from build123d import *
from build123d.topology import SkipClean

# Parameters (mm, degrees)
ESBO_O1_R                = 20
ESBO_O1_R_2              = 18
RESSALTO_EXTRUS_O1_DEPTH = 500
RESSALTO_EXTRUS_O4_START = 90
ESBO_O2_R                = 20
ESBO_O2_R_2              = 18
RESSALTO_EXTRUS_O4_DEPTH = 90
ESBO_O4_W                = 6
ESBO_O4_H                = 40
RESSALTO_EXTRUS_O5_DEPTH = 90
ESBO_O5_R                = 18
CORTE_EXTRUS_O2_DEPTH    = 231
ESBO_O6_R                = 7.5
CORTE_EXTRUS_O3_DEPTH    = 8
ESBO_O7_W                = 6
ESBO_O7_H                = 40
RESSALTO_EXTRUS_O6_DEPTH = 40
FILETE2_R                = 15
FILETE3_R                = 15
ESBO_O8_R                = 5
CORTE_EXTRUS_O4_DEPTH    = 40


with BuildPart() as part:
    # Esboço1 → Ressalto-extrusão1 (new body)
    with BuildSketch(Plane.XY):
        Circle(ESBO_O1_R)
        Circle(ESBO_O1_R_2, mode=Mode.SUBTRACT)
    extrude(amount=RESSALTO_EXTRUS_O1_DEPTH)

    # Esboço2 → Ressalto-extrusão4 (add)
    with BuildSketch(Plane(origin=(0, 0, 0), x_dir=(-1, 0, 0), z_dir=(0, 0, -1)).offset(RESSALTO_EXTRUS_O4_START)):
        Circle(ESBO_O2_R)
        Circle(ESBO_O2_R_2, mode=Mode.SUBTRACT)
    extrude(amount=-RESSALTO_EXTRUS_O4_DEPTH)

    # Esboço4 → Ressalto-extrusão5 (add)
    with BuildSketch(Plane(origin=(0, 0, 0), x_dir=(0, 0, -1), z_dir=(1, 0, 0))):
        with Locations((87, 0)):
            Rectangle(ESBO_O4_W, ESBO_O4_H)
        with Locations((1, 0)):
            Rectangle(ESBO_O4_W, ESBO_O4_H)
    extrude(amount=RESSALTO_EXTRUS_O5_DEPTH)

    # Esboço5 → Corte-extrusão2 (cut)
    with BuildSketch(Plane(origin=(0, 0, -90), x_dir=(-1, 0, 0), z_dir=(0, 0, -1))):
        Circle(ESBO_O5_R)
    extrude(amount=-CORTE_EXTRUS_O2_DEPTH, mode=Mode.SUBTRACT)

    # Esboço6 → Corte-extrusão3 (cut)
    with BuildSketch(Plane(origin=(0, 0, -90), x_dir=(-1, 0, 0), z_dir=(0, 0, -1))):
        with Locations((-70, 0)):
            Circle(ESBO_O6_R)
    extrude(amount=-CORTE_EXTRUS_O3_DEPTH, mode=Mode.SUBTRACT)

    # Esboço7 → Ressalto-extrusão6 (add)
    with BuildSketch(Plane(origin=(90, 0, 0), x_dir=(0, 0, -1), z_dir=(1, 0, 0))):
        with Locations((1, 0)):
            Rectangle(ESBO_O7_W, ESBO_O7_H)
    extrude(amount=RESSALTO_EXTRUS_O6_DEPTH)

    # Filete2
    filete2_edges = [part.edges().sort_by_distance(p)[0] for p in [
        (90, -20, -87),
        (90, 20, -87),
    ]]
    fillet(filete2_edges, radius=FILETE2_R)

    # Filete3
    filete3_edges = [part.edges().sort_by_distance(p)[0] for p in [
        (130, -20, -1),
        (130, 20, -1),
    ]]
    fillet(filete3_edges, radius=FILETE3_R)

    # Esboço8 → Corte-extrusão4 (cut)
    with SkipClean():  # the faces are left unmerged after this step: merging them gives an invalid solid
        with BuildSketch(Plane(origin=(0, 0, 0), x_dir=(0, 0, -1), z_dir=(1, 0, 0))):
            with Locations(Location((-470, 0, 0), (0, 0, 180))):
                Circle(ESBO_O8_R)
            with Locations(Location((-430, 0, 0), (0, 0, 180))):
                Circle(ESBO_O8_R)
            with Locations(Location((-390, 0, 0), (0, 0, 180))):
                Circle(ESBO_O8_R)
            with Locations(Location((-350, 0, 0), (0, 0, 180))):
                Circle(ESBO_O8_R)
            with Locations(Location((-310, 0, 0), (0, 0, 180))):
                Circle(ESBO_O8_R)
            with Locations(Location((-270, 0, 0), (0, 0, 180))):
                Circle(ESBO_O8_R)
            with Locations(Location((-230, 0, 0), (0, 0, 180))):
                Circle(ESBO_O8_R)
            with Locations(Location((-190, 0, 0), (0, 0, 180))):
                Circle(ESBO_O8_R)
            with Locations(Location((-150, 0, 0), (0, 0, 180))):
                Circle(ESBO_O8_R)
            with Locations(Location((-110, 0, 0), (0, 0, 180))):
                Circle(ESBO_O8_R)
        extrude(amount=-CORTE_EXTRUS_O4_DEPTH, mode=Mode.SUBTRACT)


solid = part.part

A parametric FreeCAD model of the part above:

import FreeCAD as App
import Part
import Sketcher

V = App.Vector


def edges_at(feature, points):
    """Names of the edges that pass closest to the given points."""
    edges = feature.Shape.Edges
    near = lambda p: min(range(len(edges)), key=lambda i: edges[i].distToShape(Part.Vertex(*p))[0])
    return sorted({f"Edge{near(p) + 1}" for p in points})


def add_polygon(sketch, points):
    """Adds a closed chain of lines whose ends are joined by coincident constraints."""
    first, n = sketch.GeometryCount, len(points)
    for a, b in zip(points, points[1:] + points[:1]):
        sketch.addGeometry(Part.LineSegment(App.Vector(*a, 0), App.Vector(*b, 0)), False)
    for i in range(n):
        sketch.addConstraint(Sketcher.Constraint("Coincident", first + i, 2, first + (i + 1) % n, 1))

doc = App.newDocument("Part")
params = doc.addObject("Spreadsheet::Sheet", "Params")
for row, (alias, value) in enumerate([
    ("sketch1_diameter", "40 mm"),
    ("sketch1_diameter2", "36 mm"),
    ("pad1_length", "500 mm"),
    ("sketch2_diameter", "40 mm"),
    ("sketch2_diameter2", "36 mm"),
    ("pad2_length", "90 mm"),
    ("sketch3_width", "40 mm"),
    ("sketch3_height", "6 mm"),
    ("pad3_length", "90 mm"),
    ("sketch4_diameter", "36 mm"),
    ("pocket1_length", "231 mm"),
    ("sketch5_diameter", "15 mm"),
    ("pocket2_length", "8 mm"),
    ("sketch6_width", "40 mm"),
    ("sketch6_height", "6 mm"),
    ("pad4_length", "40 mm"),
    ("fillet_radius", "15 mm"),
    ("fillet2_radius", "15 mm"),
    ("sketch7_diameter", "10 mm"),
    ("pocket3_length", "40 mm"),
], start=1):
    params.set(f"A{row}", alias)
    params.set(f"B{row}", "=" + value)
    params.setAlias(f"B{row}", alias)

body = doc.addObject("PartDesign::Body", "Body")

sketch1 = body.newObject("Sketcher::SketchObject", "Sketch")
sketch1.AttachmentSupport = (doc.getObject("XY_Plane"), [""])
sketch1.MapMode = "FlatFace"
sketch1.addGeometry(Part.Circle(V(0, 0, 0), V(0, 0, 1), 20), False)
sketch1.addGeometry(Part.Circle(V(0, 0, 0), V(0, 0, 1), 18), False)
sketch1.addConstraint(Sketcher.Constraint("Coincident", 0, 3, -1, 1))
sketch1.addConstraint(Sketcher.Constraint("Coincident", 1, 3, -1, 1))
sketch1.addConstraint(Sketcher.Constraint("Diameter", 0, 40.0))
sketch1.addConstraint(Sketcher.Constraint("Diameter", 1, 36.0))
sketch1.setExpression("Constraints[2]", "Params.sketch1_diameter")
sketch1.setExpression("Constraints[3]", "Params.sketch1_diameter2")
pad1 = body.newObject("PartDesign::Pad", "Pad")
pad1.Profile = sketch1
pad1.setExpression("Length", "Params.pad1_length")

sketch2 = body.newObject("Sketcher::SketchObject", "Sketch001")
sketch2.AttachmentSupport = (doc.getObject("XY_Plane"), [""])
sketch2.MapMode = "FlatFace"
sketch2.AttachmentOffset = App.Placement(V(0, 0, -90), App.Rotation())
sketch2.addGeometry(Part.Circle(V(0, 0, 0), V(0, 0, 1), 20), False)
sketch2.addGeometry(Part.Circle(V(0, 0, 0), V(0, 0, 1), 18), False)
sketch2.addConstraint(Sketcher.Constraint("Coincident", 0, 3, -1, 1))
sketch2.addConstraint(Sketcher.Constraint("Coincident", 1, 3, -1, 1))
sketch2.addConstraint(Sketcher.Constraint("Diameter", 0, 40.0))
sketch2.addConstraint(Sketcher.Constraint("Diameter", 1, 36.0))
sketch2.setExpression("Constraints[2]", "Params.sketch2_diameter")
sketch2.setExpression("Constraints[3]", "Params.sketch2_diameter2")
pad2 = body.newObject("PartDesign::Pad", "Pad001")
pad2.Profile = sketch2
pad2.setExpression("Length", "Params.pad2_length")

sketch3 = body.newObject("Sketcher::SketchObject", "Sketch002")
sketch3.AttachmentSupport = (doc.getObject("YZ_Plane"), [""])
sketch3.MapMode = "FlatFace"
add_polygon(sketch3, [(20, -84), (-20, -84), (-20, -90), (20, -90)])
add_polygon(sketch3, [(20, 2), (-20, 2), (-20, -4), (20, -4)])
sketch3.addConstraint(Sketcher.Constraint("Horizontal", 0))
sketch3.addConstraint(Sketcher.Constraint("Vertical", 1))
sketch3.addConstraint(Sketcher.Constraint("Horizontal", 2))
sketch3.addConstraint(Sketcher.Constraint("Vertical", 3))
sketch3.addConstraint(Sketcher.Constraint("Horizontal", 4))
sketch3.addConstraint(Sketcher.Constraint("Vertical", 5))
sketch3.addConstraint(Sketcher.Constraint("Horizontal", 6))
sketch3.addConstraint(Sketcher.Constraint("Vertical", 7))
sketch3.addConstraint(Sketcher.Constraint("Vertical", 1, 2, 4, 2))
sketch3.addConstraint(Sketcher.Constraint("Vertical", 3, 2, 6, 2))
sketch3.addConstraint(Sketcher.Constraint("Equal", 3, 5))
sketch3.addConstraint(Sketcher.Constraint("DistanceX", 0, 2, 0, 1, 40.0))
sketch3.addConstraint(Sketcher.Constraint("DistanceY", 1, 2, 1, 1, 6.0))
sketch3.addConstraint(Sketcher.Constraint("DistanceX", 0, 2, -1, 1, 20.0))
sketch3.addConstraint(Sketcher.Constraint("DistanceY", 0, 2, -1, 1, 84.0))
sketch3.addConstraint(Sketcher.Constraint("DistanceY", -1, 1, 4, 2, 2.0))
sketch3.setExpression("Constraints[19]", "Params.sketch3_width")
sketch3.setExpression("Constraints[20]", "Params.sketch3_height")
pad3 = body.newObject("PartDesign::Pad", "Pad002")
pad3.Profile = sketch3
pad3.setExpression("Length", "Params.pad3_length")

sketch4 = body.newObject("Sketcher::SketchObject", "Sketch003")
sketch4.AttachmentSupport = (doc.getObject("XY_Plane"), [""])
sketch4.MapMode = "FlatFace"
sketch4.AttachmentOffset = App.Placement(V(0, 0, -90), App.Rotation())
sketch4.addGeometry(Part.Circle(V(0, 0, 0), V(0, 0, 1), 18), False)
sketch4.addConstraint(Sketcher.Constraint("Coincident", 0, 3, -1, 1))
sketch4.addConstraint(Sketcher.Constraint("Diameter", 0, 36.0))
sketch4.setExpression("Constraints[1]", "Params.sketch4_diameter")
pocket1 = body.newObject("PartDesign::Pocket", "Pocket")
pocket1.Profile = sketch4
pocket1.setExpression("Length", "Params.pocket1_length")
pocket1.Reversed = True

sketch5 = body.newObject("Sketcher::SketchObject", "Sketch004")
sketch5.AttachmentSupport = (doc.getObject("XY_Plane"), [""])
sketch5.MapMode = "FlatFace"
sketch5.AttachmentOffset = App.Placement(V(0, 0, -90), App.Rotation())
sketch5.addGeometry(Part.Circle(V(70, 0, 0), V(0, 0, 1), 7.5), False)
sketch5.addConstraint(Sketcher.Constraint("PointOnObject", 0, 3, -1))
sketch5.addConstraint(Sketcher.Constraint("Diameter", 0, 15.0))
sketch5.addConstraint(Sketcher.Constraint("DistanceX", -1, 1, 0, 3, 70.0))
sketch5.setExpression("Constraints[1]", "Params.sketch5_diameter")
pocket2 = body.newObject("PartDesign::Pocket", "Pocket001")
pocket2.Profile = sketch5
pocket2.setExpression("Length", "Params.pocket2_length")
pocket2.Reversed = True

sketch6 = body.newObject("Sketcher::SketchObject", "Sketch005")
sketch6.AttachmentSupport = (doc.getObject("YZ_Plane"), [""])
sketch6.MapMode = "FlatFace"
sketch6.AttachmentOffset = App.Placement(V(0, 0, 90), App.Rotation())
add_polygon(sketch6, [(20, 2), (-20, 2), (-20, -4), (20, -4)])
sketch6.addConstraint(Sketcher.Constraint("Horizontal", 0))
sketch6.addConstraint(Sketcher.Constraint("Vertical", 1))
sketch6.addConstraint(Sketcher.Constraint("Horizontal", 2))
sketch6.addConstraint(Sketcher.Constraint("Vertical", 3))
sketch6.addConstraint(Sketcher.Constraint("DistanceX", 0, 2, 0, 1, 40.0))
sketch6.addConstraint(Sketcher.Constraint("DistanceY", 1, 2, 1, 1, 6.0))
sketch6.addConstraint(Sketcher.Constraint("DistanceX", 0, 2, -1, 1, 20.0))
sketch6.addConstraint(Sketcher.Constraint("DistanceY", -1, 1, 0, 2, 2.0))
sketch6.setExpression("Constraints[8]", "Params.sketch6_width")
sketch6.setExpression("Constraints[9]", "Params.sketch6_height")
pad4 = body.newObject("PartDesign::Pad", "Pad003")
pad4.Profile = sketch6
pad4.setExpression("Length", "Params.pad4_length")
doc.recompute()

fillet = body.newObject("PartDesign::Fillet", "Fillet")
fillet.Base = (pad4, edges_at(pad4, [(90, -20, -87), (90, 20, -87)]))
fillet.setExpression("Radius", "Params.fillet_radius")
doc.recompute()

fillet2 = body.newObject("PartDesign::Fillet", "Fillet001")
fillet2.Base = (fillet, edges_at(fillet, [(130, -20, -1), (130, 20, -1)]))
fillet2.setExpression("Radius", "Params.fillet2_radius")

sketch7 = body.newObject("Sketcher::SketchObject", "Sketch006")
sketch7.AttachmentSupport = (doc.getObject("YZ_Plane"), [""])
sketch7.MapMode = "FlatFace"
sketch7.addGeometry(Part.Circle(V(0, 470, 0), V(0, 0, 1), 5), False)
sketch7.addGeometry(Part.Circle(V(0, 430, 0), V(0, 0, 1), 5), False)
sketch7.addGeometry(Part.Circle(V(0, 390, 0), V(0, 0, 1), 5), False)
sketch7.addGeometry(Part.Circle(V(0, 350, 0), V(0, 0, 1), 5), False)
sketch7.addGeometry(Part.Circle(V(0, 310, 0), V(0, 0, 1), 5), False)
sketch7.addGeometry(Part.Circle(V(0, 270, 0), V(0, 0, 1), 5), False)
sketch7.addGeometry(Part.Circle(V(0, 230, 0), V(0, 0, 1), 5), False)
sketch7.addGeometry(Part.Circle(V(0, 190, 0), V(0, 0, 1), 5), False)
sketch7.addGeometry(Part.Circle(V(0, 150, 0), V(0, 0, 1), 5), False)
sketch7.addGeometry(Part.Circle(V(0, 110, 0), V(0, 0, 1), 5), False)
sketch7.addConstraint(Sketcher.Constraint("Equal", 0, 1))
sketch7.addConstraint(Sketcher.Constraint("Equal", 1, 2))
sketch7.addConstraint(Sketcher.Constraint("Equal", 2, 3))
sketch7.addConstraint(Sketcher.Constraint("Equal", 3, 4))
sketch7.addConstraint(Sketcher.Constraint("Equal", 4, 5))
sketch7.addConstraint(Sketcher.Constraint("Equal", 5, 6))
sketch7.addConstraint(Sketcher.Constraint("Equal", 6, 7))
sketch7.addConstraint(Sketcher.Constraint("Equal", 7, 8))
sketch7.addConstraint(Sketcher.Constraint("Equal", 8, 9))
sketch7.addConstraint(Sketcher.Constraint("PointOnObject", 0, 3, -2))
sketch7.addConstraint(Sketcher.Constraint("PointOnObject", 1, 3, -2))
sketch7.addConstraint(Sketcher.Constraint("PointOnObject", 2, 3, -2))
sketch7.addConstraint(Sketcher.Constraint("PointOnObject", 3, 3, -2))
sketch7.addConstraint(Sketcher.Constraint("PointOnObject", 4, 3, -2))
sketch7.addConstraint(Sketcher.Constraint("PointOnObject", 5, 3, -2))
sketch7.addConstraint(Sketcher.Constraint("PointOnObject", 6, 3, -2))
sketch7.addConstraint(Sketcher.Constraint("PointOnObject", 7, 3, -2))
sketch7.addConstraint(Sketcher.Constraint("PointOnObject", 8, 3, -2))
sketch7.addConstraint(Sketcher.Constraint("PointOnObject", 9, 3, -2))
sketch7.addConstraint(Sketcher.Constraint("Diameter", 0, 10.0))
sketch7.addConstraint(Sketcher.Constraint("DistanceY", -1, 1, 0, 3, 470.0))
sketch7.addConstraint(Sketcher.Constraint("DistanceY", -1, 1, 1, 3, 430.0))
sketch7.addConstraint(Sketcher.Constraint("DistanceY", -1, 1, 2, 3, 390.0))
sketch7.addConstraint(Sketcher.Constraint("DistanceY", -1, 1, 3, 3, 350.0))
sketch7.addConstraint(Sketcher.Constraint("DistanceY", -1, 1, 4, 3, 310.0))
sketch7.addConstraint(Sketcher.Constraint("DistanceY", -1, 1, 5, 3, 270.0))
sketch7.addConstraint(Sketcher.Constraint("DistanceY", -1, 1, 6, 3, 230.0))
sketch7.addConstraint(Sketcher.Constraint("DistanceY", -1, 1, 7, 3, 190.0))
sketch7.addConstraint(Sketcher.Constraint("DistanceY", -1, 1, 8, 3, 150.0))
sketch7.addConstraint(Sketcher.Constraint("DistanceY", -1, 1, 9, 3, 110.0))
sketch7.setExpression("Constraints[19]", "Params.sketch7_diameter")
pocket3 = body.newObject("PartDesign::Pocket", "Pocket002")
pocket3.Profile = sketch7
pocket3.setExpression("Length", "Params.pocket3_length")

doc.recompute()
